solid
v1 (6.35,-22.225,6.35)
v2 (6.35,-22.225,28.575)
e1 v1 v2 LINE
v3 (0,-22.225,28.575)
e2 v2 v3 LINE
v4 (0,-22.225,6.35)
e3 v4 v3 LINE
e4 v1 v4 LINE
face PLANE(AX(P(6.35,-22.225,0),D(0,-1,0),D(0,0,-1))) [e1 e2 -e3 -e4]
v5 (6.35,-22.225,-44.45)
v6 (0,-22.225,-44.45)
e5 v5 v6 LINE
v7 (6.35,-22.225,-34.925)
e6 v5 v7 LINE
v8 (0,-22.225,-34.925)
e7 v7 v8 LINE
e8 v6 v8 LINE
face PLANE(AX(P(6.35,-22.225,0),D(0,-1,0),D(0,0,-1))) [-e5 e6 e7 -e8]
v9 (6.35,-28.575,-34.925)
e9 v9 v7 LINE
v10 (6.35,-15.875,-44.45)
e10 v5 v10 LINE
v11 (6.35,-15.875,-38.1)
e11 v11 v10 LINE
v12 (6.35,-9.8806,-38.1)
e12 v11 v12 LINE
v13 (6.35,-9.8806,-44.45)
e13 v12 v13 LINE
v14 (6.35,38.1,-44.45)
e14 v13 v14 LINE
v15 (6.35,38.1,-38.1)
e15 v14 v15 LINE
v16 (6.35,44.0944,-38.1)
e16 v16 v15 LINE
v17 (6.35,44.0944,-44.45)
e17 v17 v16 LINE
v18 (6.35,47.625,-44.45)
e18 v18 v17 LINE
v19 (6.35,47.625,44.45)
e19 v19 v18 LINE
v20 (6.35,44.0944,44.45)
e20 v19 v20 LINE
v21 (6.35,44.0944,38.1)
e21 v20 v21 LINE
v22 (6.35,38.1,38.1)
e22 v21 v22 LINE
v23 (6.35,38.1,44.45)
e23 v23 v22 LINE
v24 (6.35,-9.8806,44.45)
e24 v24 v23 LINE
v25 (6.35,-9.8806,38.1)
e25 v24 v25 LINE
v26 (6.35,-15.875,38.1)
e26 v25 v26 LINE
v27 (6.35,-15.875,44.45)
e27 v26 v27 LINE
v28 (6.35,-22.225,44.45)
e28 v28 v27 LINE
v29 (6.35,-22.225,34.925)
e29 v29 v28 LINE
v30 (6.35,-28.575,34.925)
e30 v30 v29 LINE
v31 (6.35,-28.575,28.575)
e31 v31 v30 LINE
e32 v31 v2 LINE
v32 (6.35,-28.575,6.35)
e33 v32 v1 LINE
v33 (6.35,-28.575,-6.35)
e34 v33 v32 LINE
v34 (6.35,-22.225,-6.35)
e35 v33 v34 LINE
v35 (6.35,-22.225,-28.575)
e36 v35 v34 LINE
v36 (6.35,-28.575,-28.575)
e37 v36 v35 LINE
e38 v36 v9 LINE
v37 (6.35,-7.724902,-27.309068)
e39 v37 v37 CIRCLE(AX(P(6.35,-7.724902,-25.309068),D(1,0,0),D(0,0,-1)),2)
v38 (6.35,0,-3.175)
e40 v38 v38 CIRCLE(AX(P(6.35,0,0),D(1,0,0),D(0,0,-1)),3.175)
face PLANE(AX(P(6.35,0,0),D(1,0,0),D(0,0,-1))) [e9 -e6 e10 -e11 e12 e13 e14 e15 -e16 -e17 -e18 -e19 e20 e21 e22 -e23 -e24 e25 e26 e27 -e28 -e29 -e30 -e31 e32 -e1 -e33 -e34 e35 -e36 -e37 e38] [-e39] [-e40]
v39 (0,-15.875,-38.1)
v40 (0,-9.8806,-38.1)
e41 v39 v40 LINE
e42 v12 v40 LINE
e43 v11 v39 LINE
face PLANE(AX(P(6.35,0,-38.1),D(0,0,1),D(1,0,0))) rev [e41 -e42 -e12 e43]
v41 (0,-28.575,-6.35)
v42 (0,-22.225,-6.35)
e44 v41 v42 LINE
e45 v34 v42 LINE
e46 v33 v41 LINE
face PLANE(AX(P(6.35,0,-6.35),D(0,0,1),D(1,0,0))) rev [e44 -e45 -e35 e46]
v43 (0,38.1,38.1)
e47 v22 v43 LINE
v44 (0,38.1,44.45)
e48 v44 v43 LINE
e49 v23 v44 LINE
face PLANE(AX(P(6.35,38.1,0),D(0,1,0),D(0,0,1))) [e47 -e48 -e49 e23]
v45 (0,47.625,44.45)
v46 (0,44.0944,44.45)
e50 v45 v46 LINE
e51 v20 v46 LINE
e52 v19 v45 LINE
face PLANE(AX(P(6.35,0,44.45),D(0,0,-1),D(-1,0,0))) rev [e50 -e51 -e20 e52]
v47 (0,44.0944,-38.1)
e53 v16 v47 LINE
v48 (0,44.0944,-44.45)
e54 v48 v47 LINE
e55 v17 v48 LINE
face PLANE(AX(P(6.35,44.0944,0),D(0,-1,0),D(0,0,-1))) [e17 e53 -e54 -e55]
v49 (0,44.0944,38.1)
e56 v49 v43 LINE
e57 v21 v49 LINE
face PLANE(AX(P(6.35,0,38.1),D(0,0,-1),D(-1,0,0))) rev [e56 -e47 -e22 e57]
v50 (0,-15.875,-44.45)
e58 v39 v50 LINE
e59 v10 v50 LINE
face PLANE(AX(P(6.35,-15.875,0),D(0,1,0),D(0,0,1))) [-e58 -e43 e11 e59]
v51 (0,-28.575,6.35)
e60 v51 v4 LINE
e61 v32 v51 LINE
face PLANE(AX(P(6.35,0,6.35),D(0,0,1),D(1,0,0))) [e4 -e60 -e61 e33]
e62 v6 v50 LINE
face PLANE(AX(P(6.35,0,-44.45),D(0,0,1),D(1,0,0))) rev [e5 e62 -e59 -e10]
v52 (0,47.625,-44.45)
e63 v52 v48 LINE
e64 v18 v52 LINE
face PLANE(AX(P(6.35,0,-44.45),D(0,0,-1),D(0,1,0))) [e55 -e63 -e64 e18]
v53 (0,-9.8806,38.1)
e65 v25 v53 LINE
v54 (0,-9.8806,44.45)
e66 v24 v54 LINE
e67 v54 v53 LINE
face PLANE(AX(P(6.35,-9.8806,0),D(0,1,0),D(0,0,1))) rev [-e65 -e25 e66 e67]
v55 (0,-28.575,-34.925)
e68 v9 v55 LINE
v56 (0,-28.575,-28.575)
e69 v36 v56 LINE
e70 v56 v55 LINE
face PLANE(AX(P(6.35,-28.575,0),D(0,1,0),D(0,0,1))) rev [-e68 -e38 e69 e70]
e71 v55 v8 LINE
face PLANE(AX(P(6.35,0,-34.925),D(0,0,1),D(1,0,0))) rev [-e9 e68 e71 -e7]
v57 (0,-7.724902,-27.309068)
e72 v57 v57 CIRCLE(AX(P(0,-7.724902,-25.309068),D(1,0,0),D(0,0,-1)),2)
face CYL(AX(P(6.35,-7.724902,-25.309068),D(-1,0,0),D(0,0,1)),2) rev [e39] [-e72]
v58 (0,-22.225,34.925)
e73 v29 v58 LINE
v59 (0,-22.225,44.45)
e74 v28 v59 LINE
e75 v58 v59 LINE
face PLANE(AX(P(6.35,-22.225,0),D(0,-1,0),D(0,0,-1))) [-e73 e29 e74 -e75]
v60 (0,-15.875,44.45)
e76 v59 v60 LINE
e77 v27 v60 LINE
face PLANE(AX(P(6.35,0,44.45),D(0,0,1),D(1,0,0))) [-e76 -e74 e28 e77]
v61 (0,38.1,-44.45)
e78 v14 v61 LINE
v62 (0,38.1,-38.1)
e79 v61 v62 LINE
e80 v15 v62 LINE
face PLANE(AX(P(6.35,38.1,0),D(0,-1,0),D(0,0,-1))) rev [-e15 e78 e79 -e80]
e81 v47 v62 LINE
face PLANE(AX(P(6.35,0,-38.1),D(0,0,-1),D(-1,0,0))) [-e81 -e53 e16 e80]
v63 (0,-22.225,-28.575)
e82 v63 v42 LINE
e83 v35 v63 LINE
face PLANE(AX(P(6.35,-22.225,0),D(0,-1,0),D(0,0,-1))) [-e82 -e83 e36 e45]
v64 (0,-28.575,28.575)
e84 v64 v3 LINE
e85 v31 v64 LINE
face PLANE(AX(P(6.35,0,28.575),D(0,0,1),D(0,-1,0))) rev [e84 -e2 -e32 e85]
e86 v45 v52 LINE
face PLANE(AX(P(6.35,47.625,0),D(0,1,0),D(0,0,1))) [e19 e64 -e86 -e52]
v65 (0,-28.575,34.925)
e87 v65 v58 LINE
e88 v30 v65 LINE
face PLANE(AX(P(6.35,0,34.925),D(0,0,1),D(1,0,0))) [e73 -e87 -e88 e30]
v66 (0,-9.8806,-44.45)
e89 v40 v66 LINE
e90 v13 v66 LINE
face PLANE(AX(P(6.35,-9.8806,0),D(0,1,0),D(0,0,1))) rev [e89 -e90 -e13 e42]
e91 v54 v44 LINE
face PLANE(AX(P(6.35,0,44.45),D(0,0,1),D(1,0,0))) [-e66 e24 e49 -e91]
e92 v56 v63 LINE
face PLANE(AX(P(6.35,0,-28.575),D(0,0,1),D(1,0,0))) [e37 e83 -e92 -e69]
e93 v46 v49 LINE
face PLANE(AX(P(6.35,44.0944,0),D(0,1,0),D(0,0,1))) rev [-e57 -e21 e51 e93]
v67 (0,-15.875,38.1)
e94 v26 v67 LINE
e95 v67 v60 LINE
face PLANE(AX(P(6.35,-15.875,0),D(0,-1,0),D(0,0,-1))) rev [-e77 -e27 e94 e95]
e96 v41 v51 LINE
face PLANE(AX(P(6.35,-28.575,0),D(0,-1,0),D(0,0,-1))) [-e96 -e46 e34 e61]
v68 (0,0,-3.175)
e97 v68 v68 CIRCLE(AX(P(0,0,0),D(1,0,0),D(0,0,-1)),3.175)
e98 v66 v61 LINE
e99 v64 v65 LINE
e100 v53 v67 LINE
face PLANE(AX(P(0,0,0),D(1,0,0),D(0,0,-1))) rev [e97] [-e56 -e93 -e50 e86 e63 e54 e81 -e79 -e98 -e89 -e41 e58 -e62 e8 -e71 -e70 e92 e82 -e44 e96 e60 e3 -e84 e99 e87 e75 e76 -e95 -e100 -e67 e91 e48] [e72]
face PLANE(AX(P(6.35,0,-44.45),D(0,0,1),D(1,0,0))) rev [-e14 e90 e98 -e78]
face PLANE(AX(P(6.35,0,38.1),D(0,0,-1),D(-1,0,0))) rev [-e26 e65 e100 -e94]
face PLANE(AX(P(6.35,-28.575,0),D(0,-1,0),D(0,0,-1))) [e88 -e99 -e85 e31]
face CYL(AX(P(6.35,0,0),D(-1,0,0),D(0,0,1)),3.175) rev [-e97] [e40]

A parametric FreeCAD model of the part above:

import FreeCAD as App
import Part
import Sketcher
from FreeCAD import Vector
Q = App.Units.Quantity

doc = App.newDocument("Part")
body = doc.addObject("PartDesign::Body", "Body")

# Sketch on YZ plane
sketch1 = body.newObject("Sketcher::SketchObject", "Sketch")
sketch1.AttachmentSupport = (doc.getObject("YZ_Plane"), [""])
sketch1.MapMode = "FlatFace"
sketch1.addGeometry([
    Part.LineSegment(Vector(-22.225, -28.575, 0), Vector(-28.575, -28.575, 0)),  # 0
    Part.LineSegment(Vector(-28.575, -28.575, 0), Vector(-28.575, -34.925, 0)),  # 1
    Part.LineSegment(Vector(-28.575, -34.925, 0), Vector(-22.225, -34.925, 0)),  # 2
    Part.LineSegment(Vector(-22.225, -34.925, 0), Vector(-22.225, -44.45, 0)),  # 3
    Part.LineSegment(Vector(-22.225, -44.45, 0), Vector(-15.875, -44.45, 0)),  # 4
    Part.LineSegment(Vector(-15.875, -44.45, 0), Vector(-15.875, -38.1, 0)),  # 5
    Part.LineSegment(Vector(-15.875, -38.1, 0), Vector(-9.8806, -38.1, 0)),  # 6
    Part.LineSegment(Vector(-9.8806, -38.1, 0), Vector(-9.8806, -44.45, 0)),  # 7
    Part.LineSegment(Vector(-9.8806, -44.45, 0), Vector(38.1, -44.45, 0)),  # 8
    Part.LineSegment(Vector(38.1, -44.45, 0), Vector(38.1, -38.1, 0)),  # 9
    Part.LineSegment(Vector(38.1, -38.1, 0), Vector(44.0944, -38.1, 0)),  # 10
    Part.LineSegment(Vector(44.0944, -38.1, 0), Vector(44.0944, -44.45, 0)),  # 11
    Part.LineSegment(Vector(44.0944, -44.45, 0), Vector(47.625, -44.45, 0)),  # 12
    Part.LineSegment(Vector(47.625, -44.45, 0), Vector(47.625, 44.45, 0)),  # 13
    Part.LineSegment(Vector(47.625, 44.45, 0), Vector(44.0944, 44.45, 0)),  # 14
    Part.LineSegment(Vector(44.0944, 44.45, 0), Vector(44.0944, 38.1, 0)),  # 15
    Part.LineSegment(Vector(44.0944, 38.1, 0), Vector(38.1, 38.1, 0)),  # 16
    Part.LineSegment(Vector(38.1, 38.1, 0), Vector(38.1, 44.45, 0)),  # 17
    Part.LineSegment(Vector(38.1, 44.45, 0), Vector(-9.8806, 44.45, 0)),  # 18
    Part.LineSegment(Vector(-9.8806, 44.45, 0), Vector(-9.8806, 38.1, 0)),  # 19
    Part.LineSegment(Vector(-9.8806, 38.1, 0), Vector(-15.875, 38.1, 0)),  # 20
    Part.LineSegment(Vector(-15.875, 38.1, 0), Vector(-15.875, 44.45, 0)),  # 21
    Part.LineSegment(Vector(-15.875, 44.45, 0), Vector(-22.225, 44.45, 0)),  # 22
    Part.LineSegment(Vector(-22.225, 44.45, 0), Vector(-22.225, 34.925, 0)),  # 23
    Part.LineSegment(Vector(-22.225, 34.925, 0), Vector(-28.575, 34.925, 0)),  # 24
    Part.LineSegment(Vector(-28.575, 34.925, 0), Vector(-28.575, 28.575, 0)),  # 25
    Part.LineSegment(Vector(-28.575, 28.575, 0), Vector(-22.225, 28.575, 0)),  # 26
    Part.LineSegment(Vector(-22.225, 28.575, 0), Vector(-22.225, 6.35, 0)),  # 27
    Part.LineSegment(Vector(-22.225, 6.35, 0), Vector(-28.575, 6.35, 0)),  # 28
    Part.LineSegment(Vector(-28.575, 6.35, 0), Vector(-28.575, -6.35, 0)),  # 29
    Part.LineSegment(Vector(-28.575, -6.35, 0), Vector(-22.225, -6.35, 0)),  # 30
    Part.LineSegment(Vector(-22.225, -6.35, 0), Vector(-22.225, -28.575, 0)),  # 31
    Part.Circle(Vector(-7.724902, -25.309068, 0), Vector(0, 0, 1), 2),  # 32
    Part.Circle(Vector(0, 0, 0), Vector(0, 0, 1), 3.175),  # 33
], False)
sketch1.addConstraint([
    Sketcher.Constraint("Coincident", 0, 2, 1, 1),
    Sketcher.Constraint("Coincident", 1, 2, 2, 1),
    Sketcher.Constraint("Coincident", 2, 2, 3, 1),
    Sketcher.Constraint("Coincident", 3, 2, 4, 1),
    Sketcher.Constraint("Coincident", 4, 2, 5, 1),
    Sketcher.Constraint("Coincident", 5, 2, 6, 1),
    Sketcher.Constraint("Coincident", 6, 2, 7, 1),
    Sketcher.Constraint("Coincident", 7, 2, 8, 1),
    Sketcher.Constraint("Coincident", 8, 2, 9, 1),
    Sketcher.Constraint("Coincident", 9, 2, 10, 1),
    Sketcher.Constraint("Coincident", 10, 2, 11, 1),
    Sketcher.Constraint("Coincident", 11, 2, 12, 1),
    Sketcher.Constraint("Coincident", 12, 2, 13, 1),
    Sketcher.Constraint("Coincident", 13, 2, 14, 1),
    Sketcher.Constraint("Coincident", 14, 2, 15, 1),
    Sketcher.Constraint("Coincident", 15, 2, 16, 1),
    Sketcher.Constraint("Coincident", 16, 2, 17, 1),
    Sketcher.Constraint("Coincident", 17, 2, 18, 1),
    Sketcher.Constraint("Coincident", 18, 2, 19, 1),
    Sketcher.Constraint("Coincident", 19, 2, 20, 1),
    Sketcher.Constraint("Coincident", 20, 2, 21, 1),
    Sketcher.Constraint("Coincident", 21, 2, 22, 1),
    Sketcher.Constraint("Coincident", 22, 2, 23, 1),
    Sketcher.Constraint("Coincident", 23, 2, 24, 1),
    Sketcher.Constraint("Coincident", 24, 2, 25, 1),
    Sketcher.Constraint("Coincident", 25, 2, 26, 1),
    Sketcher.Constraint("Coincident", 26, 2, 27, 1),
    Sketcher.Constraint("Coincident", 27, 2, 28, 1),
    Sketcher.Constraint("Coincident", 28, 2, 29, 1),
    Sketcher.Constraint("Coincident", 29, 2, 30, 1),
    Sketcher.Constraint("Coincident", 30, 2, 31, 1),
    Sketcher.Constraint("Coincident", 31, 2, 0, 1),
    Sketcher.Constraint("Horizontal", 0),
    Sketcher.Constraint("Vertical", 1),
    Sketcher.Constraint("Horizontal", 2),
    Sketcher.Constraint("Vertical", 3),
    Sketcher.Constraint("Horizontal", 4),
    Sketcher.Constraint("Vertical", 5),
    Sketcher.Constraint("Horizontal", 6),
    Sketcher.Constraint("Vertical", 7),
    Sketcher.Constraint("Horizontal", 8),
    Sketcher.Constraint("Vertical", 9),
    Sketcher.Constraint("Horizontal", 10),
    Sketcher.Constraint("Vertical", 11),
    Sketcher.Constraint("Horizontal", 12),
    Sketcher.Constraint("Vertical", 13),
    Sketcher.Constraint("Horizontal", 14),
    Sketcher.Constraint("Vertical", 15),
    Sketcher.Constraint("Horizontal", 16),
    Sketcher.Constraint("Vertical", 17),
    Sketcher.Constraint("Horizontal", 18),
    Sketcher.Constraint("Vertical", 19),
    Sketcher.Constraint("Horizontal", 20),
    Sketcher.Constraint("Vertical", 21),
    Sketcher.Constraint("Horizontal", 22),
    Sketcher.Constraint("Vertical", 23),
    Sketcher.Constraint("Horizontal", 24),
    Sketcher.Constraint("Vertical", 25),
    Sketcher.Constraint("Horizontal", 26),
    Sketcher.Constraint("Vertical", 27),
    Sketcher.Constraint("Horizontal", 28),
    Sketcher.Constraint("Vertical", 29),
    Sketcher.Constraint("Horizontal", 30),
    Sketcher.Constraint("Vertical", 31),
    Sketcher.Constraint("Coincident", 33, 3, -1, 1),
    Sketcher.Constraint("Symmetric", 11, 2, 14, 2, -1),
    Sketcher.Constraint("Symmetric", 9, 2, 16, 2, -1),
    Sketcher.Constraint("Symmetric", 7, 2, 18, 2, -1),
    Sketcher.Constraint("Symmetric", 5, 2, 20, 2, -1),
    Sketcher.Constraint("Symmetric", 3, 2, 22, 2, -1),
    Sketcher.Constraint("Symmetric", 1, 2, 24, 2, -1),
    Sketcher.Constraint("Symmetric", 27, 2, 30, 2, -1),
    Sketcher.Constraint("Horizontal", 4, 2, 7, 2),
    Sketcher.Constraint("Horizontal", 6, 2, 9, 2),
    Sketcher.Constraint("Horizontal", 8, 2, 11, 2),
    Sketcher.Constraint("Vertical", 23, 2, 26, 2),
    Sketcher.Constraint("Vertical", 25, 2, 28, 2),
    Sketcher.Constraint("Equal", 2, 4),
    Sketcher.Constraint("Equal", 6, 10),
    Sketcher.Constraint("Equal", 30, 1),
    Sketcher.Constraint("Equal", 1, 5),
    Sketcher.Constraint("Equal", 21, 25),
    Sketcher.Constraint("Diameter", 33, Q("0.25 in")),
    Sketcher.Constraint("DistanceY", 13, 1, 13, 2, Q("3.5 in")),
    Sketcher.Constraint("DistanceY", 29, 2, 29, 1, Q("0.5 in")),
    Sketcher.Constraint("DistanceY", 10, 2, 15, 2, Q("3 in")),
    Sketcher.Constraint("DistanceX", -1, 1, 8, 2, Q("1.5 in")),
    Sketcher.Constraint("Diameter", 32, 4.0),
    Sketcher.Constraint("DistanceX", 6, 1, 6, 2, Q("0.236 in")),
    Sketcher.Constraint("DistanceX", 8, 1, 8, 2, Q("1.889 in")),
    Sketcher.Constraint("DistanceX", 12, 1, 12, 2, Q("0.139 in")),
    Sketcher.Constraint("DistanceY", 3, 2, 3, 1, Q("0.375 in")),
    Sketcher.Constraint("DistanceX", 2, 2, 32, 3, 14.500098),
    Sketcher.Constraint("DistanceY", 32, 3, -1, 1, 25.309068),
])
pad1 = body.newObject("PartDesign::Pad", "Pad")
pad1.Profile = sketch1
pad1.Length = Q("0.25 in")

doc.recompute()
